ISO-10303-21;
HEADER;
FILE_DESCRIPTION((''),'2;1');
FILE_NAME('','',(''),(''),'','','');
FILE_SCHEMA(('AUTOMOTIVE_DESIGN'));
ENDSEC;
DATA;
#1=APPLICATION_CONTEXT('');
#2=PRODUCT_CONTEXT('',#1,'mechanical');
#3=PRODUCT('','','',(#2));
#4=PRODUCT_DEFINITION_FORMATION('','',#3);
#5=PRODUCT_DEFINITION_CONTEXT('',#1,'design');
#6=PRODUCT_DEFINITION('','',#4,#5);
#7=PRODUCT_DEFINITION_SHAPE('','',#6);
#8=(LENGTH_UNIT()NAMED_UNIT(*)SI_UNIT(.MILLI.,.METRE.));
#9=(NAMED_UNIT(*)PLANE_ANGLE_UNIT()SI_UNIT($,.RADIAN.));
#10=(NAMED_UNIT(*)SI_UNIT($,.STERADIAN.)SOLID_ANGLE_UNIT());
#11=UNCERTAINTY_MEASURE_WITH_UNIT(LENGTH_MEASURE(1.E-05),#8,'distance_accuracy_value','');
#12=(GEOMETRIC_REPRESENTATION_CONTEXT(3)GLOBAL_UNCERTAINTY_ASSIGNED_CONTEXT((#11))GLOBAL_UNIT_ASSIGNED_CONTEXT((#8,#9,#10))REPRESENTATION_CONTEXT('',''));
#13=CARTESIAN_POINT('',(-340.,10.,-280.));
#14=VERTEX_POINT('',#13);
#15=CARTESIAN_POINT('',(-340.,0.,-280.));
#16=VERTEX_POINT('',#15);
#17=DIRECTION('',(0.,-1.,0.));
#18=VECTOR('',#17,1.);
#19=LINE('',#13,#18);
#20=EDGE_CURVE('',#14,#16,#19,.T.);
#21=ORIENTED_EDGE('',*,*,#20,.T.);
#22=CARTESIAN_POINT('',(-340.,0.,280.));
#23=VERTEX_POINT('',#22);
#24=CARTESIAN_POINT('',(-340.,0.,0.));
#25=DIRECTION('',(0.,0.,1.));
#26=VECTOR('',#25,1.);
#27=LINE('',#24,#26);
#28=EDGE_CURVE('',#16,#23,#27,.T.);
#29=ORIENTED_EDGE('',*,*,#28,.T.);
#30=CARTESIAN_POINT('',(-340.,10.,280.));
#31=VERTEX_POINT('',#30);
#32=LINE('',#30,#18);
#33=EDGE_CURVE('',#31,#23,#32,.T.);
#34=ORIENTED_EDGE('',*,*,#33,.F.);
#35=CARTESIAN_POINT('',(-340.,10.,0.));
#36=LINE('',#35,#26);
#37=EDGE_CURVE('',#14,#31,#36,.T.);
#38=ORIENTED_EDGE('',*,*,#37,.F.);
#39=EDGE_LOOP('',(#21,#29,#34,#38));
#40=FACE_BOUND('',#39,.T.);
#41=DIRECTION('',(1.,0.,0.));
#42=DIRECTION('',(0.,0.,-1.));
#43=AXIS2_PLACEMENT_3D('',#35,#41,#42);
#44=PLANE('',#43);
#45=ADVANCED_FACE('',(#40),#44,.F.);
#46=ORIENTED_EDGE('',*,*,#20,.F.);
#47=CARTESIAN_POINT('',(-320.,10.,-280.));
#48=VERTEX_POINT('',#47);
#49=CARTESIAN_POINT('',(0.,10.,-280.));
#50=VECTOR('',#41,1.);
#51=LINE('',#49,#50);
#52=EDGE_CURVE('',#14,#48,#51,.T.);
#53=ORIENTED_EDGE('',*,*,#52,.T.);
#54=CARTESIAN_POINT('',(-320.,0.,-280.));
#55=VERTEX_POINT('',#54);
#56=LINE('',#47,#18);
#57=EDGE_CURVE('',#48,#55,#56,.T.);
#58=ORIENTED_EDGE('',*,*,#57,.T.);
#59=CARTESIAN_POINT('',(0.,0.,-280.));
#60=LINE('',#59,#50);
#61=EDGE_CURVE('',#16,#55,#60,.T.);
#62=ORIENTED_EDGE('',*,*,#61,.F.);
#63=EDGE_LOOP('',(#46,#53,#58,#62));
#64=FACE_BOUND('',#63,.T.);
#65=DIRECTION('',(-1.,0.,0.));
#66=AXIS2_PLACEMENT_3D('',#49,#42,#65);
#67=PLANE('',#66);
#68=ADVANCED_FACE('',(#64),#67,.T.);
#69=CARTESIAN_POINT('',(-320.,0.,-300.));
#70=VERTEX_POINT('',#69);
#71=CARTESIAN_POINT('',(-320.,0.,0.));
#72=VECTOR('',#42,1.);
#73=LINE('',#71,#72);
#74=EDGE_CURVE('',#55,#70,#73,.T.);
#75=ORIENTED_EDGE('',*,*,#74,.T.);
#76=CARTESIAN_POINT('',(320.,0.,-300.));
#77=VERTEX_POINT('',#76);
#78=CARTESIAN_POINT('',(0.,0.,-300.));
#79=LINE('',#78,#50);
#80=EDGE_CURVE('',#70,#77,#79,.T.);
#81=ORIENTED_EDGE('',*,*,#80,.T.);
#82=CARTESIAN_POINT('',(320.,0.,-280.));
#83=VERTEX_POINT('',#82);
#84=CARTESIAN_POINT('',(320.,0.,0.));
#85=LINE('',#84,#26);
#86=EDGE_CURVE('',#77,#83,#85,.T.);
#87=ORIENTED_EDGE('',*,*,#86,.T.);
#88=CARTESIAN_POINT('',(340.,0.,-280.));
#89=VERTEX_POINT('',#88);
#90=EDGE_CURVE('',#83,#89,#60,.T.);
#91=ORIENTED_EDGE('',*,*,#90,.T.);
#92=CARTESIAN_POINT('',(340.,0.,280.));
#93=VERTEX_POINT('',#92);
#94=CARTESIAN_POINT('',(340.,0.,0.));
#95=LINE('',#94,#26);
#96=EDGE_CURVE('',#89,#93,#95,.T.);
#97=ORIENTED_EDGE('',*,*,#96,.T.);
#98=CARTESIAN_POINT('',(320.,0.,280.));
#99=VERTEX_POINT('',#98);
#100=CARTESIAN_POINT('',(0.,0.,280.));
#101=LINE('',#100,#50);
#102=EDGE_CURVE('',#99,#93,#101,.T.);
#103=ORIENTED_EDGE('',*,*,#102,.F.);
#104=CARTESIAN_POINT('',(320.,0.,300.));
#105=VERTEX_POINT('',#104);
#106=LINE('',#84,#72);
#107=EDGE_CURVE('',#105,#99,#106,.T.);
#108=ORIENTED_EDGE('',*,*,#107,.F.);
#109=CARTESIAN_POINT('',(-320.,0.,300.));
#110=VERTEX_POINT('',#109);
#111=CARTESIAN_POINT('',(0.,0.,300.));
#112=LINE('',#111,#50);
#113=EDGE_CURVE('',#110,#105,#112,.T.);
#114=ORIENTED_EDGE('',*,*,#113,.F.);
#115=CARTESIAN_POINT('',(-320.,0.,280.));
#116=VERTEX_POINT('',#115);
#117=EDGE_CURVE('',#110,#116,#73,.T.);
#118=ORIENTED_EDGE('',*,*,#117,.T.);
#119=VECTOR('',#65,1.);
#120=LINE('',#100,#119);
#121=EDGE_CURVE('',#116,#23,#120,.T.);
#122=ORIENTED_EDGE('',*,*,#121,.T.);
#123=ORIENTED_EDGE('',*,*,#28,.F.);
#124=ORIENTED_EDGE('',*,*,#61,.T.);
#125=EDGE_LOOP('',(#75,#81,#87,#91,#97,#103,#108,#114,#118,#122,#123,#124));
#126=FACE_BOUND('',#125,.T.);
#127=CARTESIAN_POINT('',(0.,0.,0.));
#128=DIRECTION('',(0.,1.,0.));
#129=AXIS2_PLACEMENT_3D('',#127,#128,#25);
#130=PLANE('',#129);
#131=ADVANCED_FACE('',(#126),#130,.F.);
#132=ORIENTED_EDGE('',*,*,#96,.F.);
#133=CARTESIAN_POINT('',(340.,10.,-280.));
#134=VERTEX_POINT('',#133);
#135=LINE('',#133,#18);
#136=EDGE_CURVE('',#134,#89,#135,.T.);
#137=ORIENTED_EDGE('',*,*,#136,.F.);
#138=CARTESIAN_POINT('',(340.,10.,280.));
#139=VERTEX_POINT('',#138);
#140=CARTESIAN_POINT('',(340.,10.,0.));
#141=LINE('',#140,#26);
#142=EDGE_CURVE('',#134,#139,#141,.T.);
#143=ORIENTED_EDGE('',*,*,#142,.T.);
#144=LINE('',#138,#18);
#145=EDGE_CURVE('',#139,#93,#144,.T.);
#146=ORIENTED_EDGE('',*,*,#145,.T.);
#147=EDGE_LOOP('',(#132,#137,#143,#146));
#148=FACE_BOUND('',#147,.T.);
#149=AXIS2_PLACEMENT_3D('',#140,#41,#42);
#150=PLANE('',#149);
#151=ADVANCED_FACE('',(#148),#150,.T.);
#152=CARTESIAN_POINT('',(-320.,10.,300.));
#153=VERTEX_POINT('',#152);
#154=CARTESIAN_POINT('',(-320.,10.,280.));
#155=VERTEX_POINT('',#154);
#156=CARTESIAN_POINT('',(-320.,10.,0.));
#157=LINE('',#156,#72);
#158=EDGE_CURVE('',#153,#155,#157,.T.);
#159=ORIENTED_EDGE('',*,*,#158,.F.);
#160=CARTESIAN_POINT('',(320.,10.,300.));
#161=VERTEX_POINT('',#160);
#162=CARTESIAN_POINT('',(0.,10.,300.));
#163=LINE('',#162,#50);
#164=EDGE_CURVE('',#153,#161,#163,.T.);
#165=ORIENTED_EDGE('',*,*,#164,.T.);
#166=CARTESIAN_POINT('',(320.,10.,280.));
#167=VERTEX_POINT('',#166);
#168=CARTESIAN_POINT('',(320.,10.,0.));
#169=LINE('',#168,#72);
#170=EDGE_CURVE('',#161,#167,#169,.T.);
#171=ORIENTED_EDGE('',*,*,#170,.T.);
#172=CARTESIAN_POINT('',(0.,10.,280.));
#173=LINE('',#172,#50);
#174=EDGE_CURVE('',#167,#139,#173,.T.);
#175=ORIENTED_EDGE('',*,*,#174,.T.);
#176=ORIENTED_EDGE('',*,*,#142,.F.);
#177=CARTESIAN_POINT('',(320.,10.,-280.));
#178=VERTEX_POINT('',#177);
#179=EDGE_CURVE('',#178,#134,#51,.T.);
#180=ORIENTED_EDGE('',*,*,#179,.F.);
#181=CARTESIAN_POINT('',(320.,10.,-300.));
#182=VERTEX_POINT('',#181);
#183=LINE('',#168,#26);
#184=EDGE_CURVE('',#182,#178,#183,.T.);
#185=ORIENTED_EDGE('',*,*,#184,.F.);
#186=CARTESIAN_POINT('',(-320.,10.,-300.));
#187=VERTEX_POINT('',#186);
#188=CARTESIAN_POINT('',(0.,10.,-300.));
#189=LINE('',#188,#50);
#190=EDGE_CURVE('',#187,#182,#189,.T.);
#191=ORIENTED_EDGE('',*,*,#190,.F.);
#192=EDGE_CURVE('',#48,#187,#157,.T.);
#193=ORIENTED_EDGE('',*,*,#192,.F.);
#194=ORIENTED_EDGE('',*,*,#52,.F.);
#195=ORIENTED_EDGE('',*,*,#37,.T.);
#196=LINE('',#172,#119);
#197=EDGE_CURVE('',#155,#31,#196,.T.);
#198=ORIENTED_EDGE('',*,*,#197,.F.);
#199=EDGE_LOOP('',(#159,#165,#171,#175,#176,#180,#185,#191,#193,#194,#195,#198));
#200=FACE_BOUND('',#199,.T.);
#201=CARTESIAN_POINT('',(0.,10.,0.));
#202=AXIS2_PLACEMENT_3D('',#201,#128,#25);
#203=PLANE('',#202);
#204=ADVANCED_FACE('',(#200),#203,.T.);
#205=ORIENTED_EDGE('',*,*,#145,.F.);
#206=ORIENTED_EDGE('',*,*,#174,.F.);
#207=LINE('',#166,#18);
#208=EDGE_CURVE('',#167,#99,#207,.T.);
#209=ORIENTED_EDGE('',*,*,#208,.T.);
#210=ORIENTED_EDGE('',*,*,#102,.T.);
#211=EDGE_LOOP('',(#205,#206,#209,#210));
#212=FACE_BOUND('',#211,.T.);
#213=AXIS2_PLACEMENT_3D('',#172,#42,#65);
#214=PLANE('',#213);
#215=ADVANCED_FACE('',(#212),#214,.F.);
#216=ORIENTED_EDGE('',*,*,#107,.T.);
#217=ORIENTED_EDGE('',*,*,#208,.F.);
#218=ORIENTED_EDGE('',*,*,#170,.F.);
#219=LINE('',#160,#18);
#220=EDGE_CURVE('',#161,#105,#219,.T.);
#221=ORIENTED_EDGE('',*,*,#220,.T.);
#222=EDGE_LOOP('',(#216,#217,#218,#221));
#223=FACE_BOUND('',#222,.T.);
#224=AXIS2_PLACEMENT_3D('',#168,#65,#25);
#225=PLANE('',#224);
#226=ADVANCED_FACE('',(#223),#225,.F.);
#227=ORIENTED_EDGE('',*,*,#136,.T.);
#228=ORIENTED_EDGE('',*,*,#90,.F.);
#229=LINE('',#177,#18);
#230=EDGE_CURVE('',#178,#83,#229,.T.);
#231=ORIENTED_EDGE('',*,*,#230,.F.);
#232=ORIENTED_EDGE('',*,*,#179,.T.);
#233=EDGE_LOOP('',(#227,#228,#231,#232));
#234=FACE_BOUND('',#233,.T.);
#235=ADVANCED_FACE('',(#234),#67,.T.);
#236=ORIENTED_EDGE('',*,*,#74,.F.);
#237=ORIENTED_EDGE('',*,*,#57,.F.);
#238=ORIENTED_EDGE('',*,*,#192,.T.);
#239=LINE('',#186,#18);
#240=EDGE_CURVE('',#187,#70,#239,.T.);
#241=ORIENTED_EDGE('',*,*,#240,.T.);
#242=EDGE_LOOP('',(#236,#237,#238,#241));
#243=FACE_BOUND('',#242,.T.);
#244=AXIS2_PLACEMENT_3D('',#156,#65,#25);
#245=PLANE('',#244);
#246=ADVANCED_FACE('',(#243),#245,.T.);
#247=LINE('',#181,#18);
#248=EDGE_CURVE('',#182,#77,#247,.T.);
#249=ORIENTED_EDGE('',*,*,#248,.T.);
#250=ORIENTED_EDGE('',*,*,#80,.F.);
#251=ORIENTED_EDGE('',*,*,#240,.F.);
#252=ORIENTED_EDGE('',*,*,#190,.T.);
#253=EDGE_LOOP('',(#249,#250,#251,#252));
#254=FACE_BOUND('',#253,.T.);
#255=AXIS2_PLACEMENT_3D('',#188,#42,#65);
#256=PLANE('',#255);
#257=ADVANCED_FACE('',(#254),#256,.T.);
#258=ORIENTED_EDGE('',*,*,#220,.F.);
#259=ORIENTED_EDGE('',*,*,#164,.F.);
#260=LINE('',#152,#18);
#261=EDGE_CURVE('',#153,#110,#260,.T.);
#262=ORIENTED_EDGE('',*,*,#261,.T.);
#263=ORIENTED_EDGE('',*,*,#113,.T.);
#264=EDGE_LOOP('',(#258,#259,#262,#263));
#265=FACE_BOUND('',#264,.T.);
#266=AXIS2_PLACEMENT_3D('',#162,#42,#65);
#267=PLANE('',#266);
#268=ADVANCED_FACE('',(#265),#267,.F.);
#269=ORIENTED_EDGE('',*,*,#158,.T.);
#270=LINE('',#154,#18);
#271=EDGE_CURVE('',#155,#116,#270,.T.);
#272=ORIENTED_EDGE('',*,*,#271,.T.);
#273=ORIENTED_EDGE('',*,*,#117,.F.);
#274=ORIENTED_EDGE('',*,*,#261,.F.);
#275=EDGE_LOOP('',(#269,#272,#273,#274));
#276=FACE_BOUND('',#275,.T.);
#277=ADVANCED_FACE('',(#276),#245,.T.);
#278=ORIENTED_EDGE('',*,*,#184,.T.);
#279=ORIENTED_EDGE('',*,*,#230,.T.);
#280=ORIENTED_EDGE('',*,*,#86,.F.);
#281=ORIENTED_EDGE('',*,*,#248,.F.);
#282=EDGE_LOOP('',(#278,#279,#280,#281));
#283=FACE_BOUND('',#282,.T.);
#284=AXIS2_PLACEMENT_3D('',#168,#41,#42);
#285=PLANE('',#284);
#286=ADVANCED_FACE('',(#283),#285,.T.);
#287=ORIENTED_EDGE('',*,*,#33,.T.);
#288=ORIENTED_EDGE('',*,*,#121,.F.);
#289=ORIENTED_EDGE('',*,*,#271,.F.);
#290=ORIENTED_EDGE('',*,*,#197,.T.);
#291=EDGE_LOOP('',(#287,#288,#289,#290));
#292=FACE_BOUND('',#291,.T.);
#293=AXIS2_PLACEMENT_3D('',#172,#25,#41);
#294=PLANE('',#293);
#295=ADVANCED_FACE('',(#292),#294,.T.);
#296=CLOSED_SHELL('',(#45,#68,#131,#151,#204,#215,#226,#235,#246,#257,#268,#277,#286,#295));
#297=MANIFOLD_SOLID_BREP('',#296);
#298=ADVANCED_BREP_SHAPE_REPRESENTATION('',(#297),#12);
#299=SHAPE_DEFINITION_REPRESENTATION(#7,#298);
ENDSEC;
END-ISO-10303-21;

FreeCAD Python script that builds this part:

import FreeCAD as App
import Part
import Sketcher


def add_polygon(sketch, points):
    """Adds a closed chain of lines whose ends are joined by coincident constraints."""
    first, n = sketch.GeometryCount, len(points)
    for a, b in zip(points, points[1:] + points[:1]):
        sketch.addGeometry(Part.LineSegment(App.Vector(*a, 0), App.Vector(*b, 0)), False)
    for i in range(n):
        sketch.addConstraint(Sketcher.Constraint("Coincident", first + i, 2, first + (i + 1) % n, 1))

doc = App.newDocument("Part")
body = doc.addObject("PartDesign::Body", "Body")

sketch1 = body.newObject("Sketcher::SketchObject", "Sketch")
sketch1.AttachmentSupport = (doc.getObject("XZ_Plane"), [""])
sketch1.MapMode = "FlatFace"
add_polygon(sketch1, [(320, -300), (-320, -300), (-320, -280), (-340, -280), (-340, 280), (-320, 280), (-320, 300), (320, 300), (320, 280), (340, 280), (340, -280), (320, -280)])
sketch1.addConstraint([
    Sketcher.Constraint("Horizontal", 0),
    Sketcher.Constraint("Vertical", 1),
    Sketcher.Constraint("Horizontal", 2),
    Sketcher.Constraint("Vertical", 3),
    Sketcher.Constraint("Horizontal", 4),
    Sketcher.Constraint("Vertical", 5),
    Sketcher.Constraint("Horizontal", 6),
    Sketcher.Constraint("Vertical", 7),
    Sketcher.Constraint("Horizontal", 8),
    Sketcher.Constraint("Vertical", 9),
    Sketcher.Constraint("Horizontal", 10),
    Sketcher.Constraint("Vertical", 11),
    Sketcher.Constraint("Symmetric", 0, 2, 6, 2, -1, 1),
    Sketcher.Constraint("Symmetric", 2, 2, 8, 2, -1, 1),
    Sketcher.Constraint("Symmetric", 4, 2, 10, 2, -1, 1),
    Sketcher.Constraint("Symmetric", 4, 2, 7, 2, -2),
    Sketcher.Constraint("Equal", 10, 1),
    Sketcher.Constraint("DistanceX", 0, 2, 0, 1, 640.0),
    Sketcher.Constraint("DistanceX", 2, 2, 2, 1, 20.0),
    Sketcher.Constraint("DistanceY", 3, 1, 3, 2, 560.0),
])
pad1 = body.newObject("PartDesign::Pad", "Pad")
pad1.Profile = sketch1
pad1.Length = 10
pad1.Reversed = True

doc.recompute()
